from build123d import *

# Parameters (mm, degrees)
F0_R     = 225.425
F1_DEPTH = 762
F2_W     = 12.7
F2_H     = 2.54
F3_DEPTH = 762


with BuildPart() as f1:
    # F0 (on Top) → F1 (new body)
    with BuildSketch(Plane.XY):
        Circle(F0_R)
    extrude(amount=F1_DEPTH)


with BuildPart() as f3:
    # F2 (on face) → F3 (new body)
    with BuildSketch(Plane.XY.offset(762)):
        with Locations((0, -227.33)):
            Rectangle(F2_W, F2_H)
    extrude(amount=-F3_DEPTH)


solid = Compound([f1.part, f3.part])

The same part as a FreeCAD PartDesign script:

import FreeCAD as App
import Part
import Sketcher
from FreeCAD import Vector
Q = App.Units.Quantity

doc = App.newDocument("Part")
body = doc.addObject("PartDesign::Body", "Body")

# Sketch on XY plane
sketch1 = doc.addObject("Sketcher::SketchObject", "Sketch")
body.addObject(sketch1)
sketch1.AttachmentSupport = (doc.XY_Plane, [""])
sketch1.MapMode = "FlatFace"
sketch1.addGeometry(Part.Circle(Vector(0, 0, 0), Vector(0, 0, 1), 225), False)
sketch1.addConstraint([
    Sketcher.Constraint("Coincident", 0, 3, -1, 1),
    Sketcher.Constraint("Diameter", 0, Q("17.75 in")),
])
pad1 = doc.addObject("PartDesign::Pad", "Pad")
body.addObject(pad1)
pad1.Profile = sketch1
pad1.Length = Q("30 in")
body2 = doc.addObject("PartDesign::Body", "Body001")

# Sketch on XY plane
sketch2 = doc.addObject("Sketcher::SketchObject", "Sketch001")
body2.addObject(sketch2)
sketch2.AttachmentSupport = (doc.getObject("XY_Plane001"), [""])
sketch2.MapMode = "FlatFace"
sketch2.AttachmentOffset = App.Placement(Vector(0, 0, 30 * 25.4), App.Rotation())
sketch2.addGeometry([
    Part.LineSegment(Vector(-6.3, -226.1, 0), Vector(-6.3, -228.6, 0)),
    Part.LineSegment(Vector(-6.3, -228.6, 0), Vector(6.3, -228.6, 0)),
    Part.LineSegment(Vector(6.3, -228.6, 0), Vector(6.3, -226.1, 0)),
    Part.LineSegment(Vector(6.3, -226.1, 0), Vector(-6.3, -226.1, 0)),
], False)
sketch2.addConstraint([
    Sketcher.Constraint("Coincident", 0, 2, 1, 1),
    Sketcher.Constraint("Coincident", 1, 2, 2, 1),
    Sketcher.Constraint("Coincident", 2, 2, 3, 1),
    Sketcher.Constraint("Coincident", 3, 2, 0, 1),
    Sketcher.Constraint("Vertical", 0),
    Sketcher.Constraint("Horizontal", 1),
    Sketcher.Constraint("Vertical", 2),
    Sketcher.Constraint("Horizontal", 3),
    Sketcher.Constraint("DistanceX", 1, 1, 1, 2, Q("0.5 in")),
    Sketcher.Constraint("DistanceY", 0, 2, 0, 1, Q("0.1 in")),
    Sketcher.Constraint("DistanceY", 0, 2, -1, 1, Q("9 in")),
    Sketcher.Constraint("DistanceX", 0, 2, -1, 1, Q("0.25 in")),
])
pad2 = doc.addObject("PartDesign::Pad", "Pad001")
body2.addObject(pad2)
pad2.Profile = sketch2
pad2.Length = Q("30 in")
pad2.Reversed = True

doc.recompute()
